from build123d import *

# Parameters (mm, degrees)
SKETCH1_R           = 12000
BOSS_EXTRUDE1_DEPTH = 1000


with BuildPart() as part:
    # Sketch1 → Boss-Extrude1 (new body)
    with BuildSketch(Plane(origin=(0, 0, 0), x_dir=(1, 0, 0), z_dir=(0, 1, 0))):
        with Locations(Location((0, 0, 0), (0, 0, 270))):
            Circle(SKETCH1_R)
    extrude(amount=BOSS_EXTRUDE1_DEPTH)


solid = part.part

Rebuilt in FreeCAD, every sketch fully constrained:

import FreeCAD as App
import Part
import Sketcher
from FreeCAD import Vector

doc = App.newDocument("Part")
body = doc.addObject("PartDesign::Body", "Body")

# Sketch on XZ plane
sketch1 = doc.addObject("Sketcher::SketchObject", "Sketch")
body.addObject(sketch1)
sketch1.AttachmentSupport = (doc.XZ_Plane, [""])
sketch1.MapMode = "FlatFace"
sketch1.addGeometry(Part.Circle(Vector(0, 0, 0), Vector(0, 0, 1), 12000), False)
sketch1.addConstraint([
    Sketcher.Constraint("Coincident", 0, 3, -1, 1),
    Sketcher.Constraint("Diameter", 0, 24000.0),
])
pad1 = doc.addObject("PartDesign::Pad", "Pad")
body.addObject(pad1)
pad1.Profile = sketch1
pad1.Length = 1000
pad1.Reversed = True

doc.recompute()
